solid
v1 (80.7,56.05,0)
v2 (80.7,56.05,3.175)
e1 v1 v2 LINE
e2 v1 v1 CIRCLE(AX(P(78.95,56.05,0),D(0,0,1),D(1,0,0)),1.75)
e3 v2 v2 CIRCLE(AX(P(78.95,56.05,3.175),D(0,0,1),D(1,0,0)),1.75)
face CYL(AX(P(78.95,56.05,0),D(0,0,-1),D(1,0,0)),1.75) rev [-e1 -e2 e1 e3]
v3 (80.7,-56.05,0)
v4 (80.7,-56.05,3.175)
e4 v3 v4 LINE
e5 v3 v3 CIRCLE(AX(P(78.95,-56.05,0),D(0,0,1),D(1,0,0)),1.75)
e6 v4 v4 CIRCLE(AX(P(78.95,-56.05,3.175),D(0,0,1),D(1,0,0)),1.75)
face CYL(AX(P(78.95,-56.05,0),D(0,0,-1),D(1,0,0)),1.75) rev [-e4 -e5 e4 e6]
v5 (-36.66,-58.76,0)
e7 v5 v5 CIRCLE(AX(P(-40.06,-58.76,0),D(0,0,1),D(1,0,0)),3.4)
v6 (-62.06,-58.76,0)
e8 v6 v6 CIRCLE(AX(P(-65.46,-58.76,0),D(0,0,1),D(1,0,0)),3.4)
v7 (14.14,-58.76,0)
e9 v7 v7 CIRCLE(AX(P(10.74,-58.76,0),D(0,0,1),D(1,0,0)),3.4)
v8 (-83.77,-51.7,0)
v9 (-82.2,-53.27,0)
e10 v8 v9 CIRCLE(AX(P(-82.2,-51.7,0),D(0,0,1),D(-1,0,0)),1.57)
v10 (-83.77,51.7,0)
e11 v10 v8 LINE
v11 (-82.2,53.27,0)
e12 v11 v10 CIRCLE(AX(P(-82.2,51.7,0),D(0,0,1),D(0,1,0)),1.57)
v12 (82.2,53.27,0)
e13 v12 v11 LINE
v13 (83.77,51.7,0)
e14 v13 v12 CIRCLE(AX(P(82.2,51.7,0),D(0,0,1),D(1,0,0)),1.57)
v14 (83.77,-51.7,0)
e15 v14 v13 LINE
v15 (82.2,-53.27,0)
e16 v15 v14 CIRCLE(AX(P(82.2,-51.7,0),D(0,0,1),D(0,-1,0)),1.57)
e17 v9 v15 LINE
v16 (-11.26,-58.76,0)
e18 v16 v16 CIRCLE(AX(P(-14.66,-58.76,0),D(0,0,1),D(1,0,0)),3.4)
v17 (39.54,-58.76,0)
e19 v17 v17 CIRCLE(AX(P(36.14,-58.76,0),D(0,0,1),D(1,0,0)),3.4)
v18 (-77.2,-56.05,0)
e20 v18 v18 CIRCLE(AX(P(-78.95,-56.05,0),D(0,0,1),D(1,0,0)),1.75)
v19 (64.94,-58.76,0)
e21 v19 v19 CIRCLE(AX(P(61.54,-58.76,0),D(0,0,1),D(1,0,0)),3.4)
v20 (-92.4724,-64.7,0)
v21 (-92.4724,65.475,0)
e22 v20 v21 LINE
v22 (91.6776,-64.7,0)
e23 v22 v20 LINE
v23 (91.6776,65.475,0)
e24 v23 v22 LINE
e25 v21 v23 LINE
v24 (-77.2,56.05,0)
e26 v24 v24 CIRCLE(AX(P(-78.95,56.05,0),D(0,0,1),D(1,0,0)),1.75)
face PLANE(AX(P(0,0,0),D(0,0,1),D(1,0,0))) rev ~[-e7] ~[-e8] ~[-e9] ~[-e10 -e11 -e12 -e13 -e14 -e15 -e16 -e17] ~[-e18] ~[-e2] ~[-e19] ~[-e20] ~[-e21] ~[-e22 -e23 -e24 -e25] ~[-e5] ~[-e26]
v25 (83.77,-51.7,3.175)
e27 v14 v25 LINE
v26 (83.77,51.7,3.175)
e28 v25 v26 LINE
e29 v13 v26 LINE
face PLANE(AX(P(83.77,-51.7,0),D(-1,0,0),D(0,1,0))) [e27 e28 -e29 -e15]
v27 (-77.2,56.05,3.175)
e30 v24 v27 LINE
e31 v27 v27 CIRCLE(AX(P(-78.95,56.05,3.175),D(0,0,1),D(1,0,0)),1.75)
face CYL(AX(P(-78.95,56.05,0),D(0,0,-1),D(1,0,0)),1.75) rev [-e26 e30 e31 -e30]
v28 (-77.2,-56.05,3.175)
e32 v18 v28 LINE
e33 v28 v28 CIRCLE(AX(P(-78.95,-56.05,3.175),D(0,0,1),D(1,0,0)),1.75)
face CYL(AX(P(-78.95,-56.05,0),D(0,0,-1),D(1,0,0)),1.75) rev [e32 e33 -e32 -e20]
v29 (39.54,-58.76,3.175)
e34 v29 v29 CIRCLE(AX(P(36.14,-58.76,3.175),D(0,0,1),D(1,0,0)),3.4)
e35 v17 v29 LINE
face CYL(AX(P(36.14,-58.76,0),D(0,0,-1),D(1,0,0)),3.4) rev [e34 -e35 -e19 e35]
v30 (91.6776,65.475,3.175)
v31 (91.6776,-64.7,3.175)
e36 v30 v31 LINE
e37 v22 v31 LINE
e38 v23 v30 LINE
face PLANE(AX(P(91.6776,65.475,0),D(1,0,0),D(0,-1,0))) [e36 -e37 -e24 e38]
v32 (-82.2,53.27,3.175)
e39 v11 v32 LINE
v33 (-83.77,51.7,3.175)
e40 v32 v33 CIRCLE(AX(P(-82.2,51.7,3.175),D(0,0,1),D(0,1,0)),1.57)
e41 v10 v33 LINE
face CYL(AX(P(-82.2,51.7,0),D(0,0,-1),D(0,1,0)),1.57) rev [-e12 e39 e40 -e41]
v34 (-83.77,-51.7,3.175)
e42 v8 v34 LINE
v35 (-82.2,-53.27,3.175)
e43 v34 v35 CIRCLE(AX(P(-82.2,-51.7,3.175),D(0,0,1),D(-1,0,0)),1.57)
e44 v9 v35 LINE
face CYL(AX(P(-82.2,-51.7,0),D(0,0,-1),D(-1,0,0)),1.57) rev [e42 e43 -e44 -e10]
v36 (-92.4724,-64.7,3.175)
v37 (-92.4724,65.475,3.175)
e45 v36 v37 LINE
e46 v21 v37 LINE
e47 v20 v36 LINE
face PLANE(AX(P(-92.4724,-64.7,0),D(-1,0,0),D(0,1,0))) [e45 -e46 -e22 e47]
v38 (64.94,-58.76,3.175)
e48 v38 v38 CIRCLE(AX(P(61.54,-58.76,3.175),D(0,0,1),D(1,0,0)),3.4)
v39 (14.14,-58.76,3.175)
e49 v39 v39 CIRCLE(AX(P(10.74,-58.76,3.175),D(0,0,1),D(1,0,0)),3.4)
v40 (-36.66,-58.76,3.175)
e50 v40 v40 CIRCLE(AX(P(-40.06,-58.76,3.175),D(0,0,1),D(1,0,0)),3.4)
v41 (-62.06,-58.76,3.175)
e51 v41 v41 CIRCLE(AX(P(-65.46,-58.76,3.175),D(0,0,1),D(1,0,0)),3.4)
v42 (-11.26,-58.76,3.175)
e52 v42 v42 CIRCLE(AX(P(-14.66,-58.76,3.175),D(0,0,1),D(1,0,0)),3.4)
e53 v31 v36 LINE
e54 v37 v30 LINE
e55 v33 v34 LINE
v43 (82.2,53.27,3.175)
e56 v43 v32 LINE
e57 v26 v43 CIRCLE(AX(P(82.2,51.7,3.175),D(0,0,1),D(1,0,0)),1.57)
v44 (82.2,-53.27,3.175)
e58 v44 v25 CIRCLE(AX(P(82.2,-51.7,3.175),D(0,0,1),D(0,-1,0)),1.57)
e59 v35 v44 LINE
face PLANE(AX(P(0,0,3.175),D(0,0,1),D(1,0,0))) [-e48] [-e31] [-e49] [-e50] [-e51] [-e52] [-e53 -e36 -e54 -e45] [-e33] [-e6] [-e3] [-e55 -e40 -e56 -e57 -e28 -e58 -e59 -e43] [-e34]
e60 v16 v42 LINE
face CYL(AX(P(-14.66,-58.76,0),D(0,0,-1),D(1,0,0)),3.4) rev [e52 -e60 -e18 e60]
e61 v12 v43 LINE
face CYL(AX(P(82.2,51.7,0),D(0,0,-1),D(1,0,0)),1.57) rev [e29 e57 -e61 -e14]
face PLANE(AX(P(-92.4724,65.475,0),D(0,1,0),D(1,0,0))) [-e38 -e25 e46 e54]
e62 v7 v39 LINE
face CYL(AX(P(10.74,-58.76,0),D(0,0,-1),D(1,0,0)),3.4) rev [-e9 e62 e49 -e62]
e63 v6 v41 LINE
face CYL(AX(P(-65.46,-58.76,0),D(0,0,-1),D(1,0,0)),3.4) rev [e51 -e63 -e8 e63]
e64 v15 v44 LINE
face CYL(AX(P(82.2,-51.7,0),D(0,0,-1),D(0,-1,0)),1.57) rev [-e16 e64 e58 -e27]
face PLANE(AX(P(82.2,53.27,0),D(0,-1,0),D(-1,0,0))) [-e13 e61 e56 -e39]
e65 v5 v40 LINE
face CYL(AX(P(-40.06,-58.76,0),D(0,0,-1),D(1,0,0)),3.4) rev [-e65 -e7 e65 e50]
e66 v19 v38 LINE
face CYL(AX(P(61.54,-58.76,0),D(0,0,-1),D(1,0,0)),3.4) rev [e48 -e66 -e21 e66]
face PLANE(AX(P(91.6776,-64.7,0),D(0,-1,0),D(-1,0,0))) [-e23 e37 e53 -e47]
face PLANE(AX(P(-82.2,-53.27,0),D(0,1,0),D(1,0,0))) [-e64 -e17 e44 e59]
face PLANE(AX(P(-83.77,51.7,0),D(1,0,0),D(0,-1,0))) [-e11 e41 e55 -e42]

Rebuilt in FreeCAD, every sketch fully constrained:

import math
import FreeCAD as App
import Part
import Sketcher
from FreeCAD import Vector
Q = App.Units.Quantity


def add_polygon(sketch, points):
    """Adds a closed chain of lines whose ends are joined by coincident constraints."""
    first, n = sketch.GeometryCount, len(points)
    for a, b in zip(points, points[1:] + points[:1]):
        sketch.addGeometry(Part.LineSegment(App.Vector(*a, 0), App.Vector(*b, 0)), False)
    for i in range(n):
        sketch.addConstraint(Sketcher.Constraint("Coincident", first + i, 2, first + (i + 1) % n, 1))

doc = App.newDocument("Part")
params = doc.addObject("Spreadsheet::Sheet", "Params")
for row, (alias, value) in enumerate([
    ("sketch1_diameter", "6.8 mm"),
    ("sketch1_diameter2", "3.5 mm"),
    ("sketch1_width", "184.15 mm"),
    ("sketch1_radius", "1.57 mm"),
    ("sketch1_width2", "164.4 mm"),
    ("pad1_length", "3.175 mm"),
], start=1):
    params.set(f"A{row}", alias)
    params.set(f"B{row}", "=" + value)
    params.setAlias(f"B{row}", alias)

body = doc.addObject("PartDesign::Body", "Body")

sketch1 = body.newObject("Sketcher::SketchObject", "Sketch")
sketch1.AttachmentSupport = (doc.getObject("XY_Plane"), [""])
sketch1.MapMode = "FlatFace"
add_polygon(sketch1, [(91.7, 65.5), (-92.5, 65.5), (-92.5, -64.7), (91.7, -64.7)])
sketch1.addGeometry(Part.Circle(Vector(-79, -56, 0), Vector(0, 0, 1), 1.8), False)
sketch1.addGeometry(Part.Circle(Vector(-65.5, -58.8, 0), Vector(0, 0, 1), 3.4), False)
sketch1.addGeometry(Part.Circle(Vector(-40.1, -58.8, 0), Vector(0, 0, 1), 3.4), False)
sketch1.addGeometry(Part.Circle(Vector(-14.7, -58.8, 0), Vector(0, 0, 1), 3.4), False)
sketch1.addGeometry(Part.Circle(Vector(10.7, -58.8, 0), Vector(0, 0, 1), 3.4), False)
sketch1.addGeometry(Part.Circle(Vector(36.1, -58.8, 0), Vector(0, 0, 1), 3.4), False)
sketch1.addGeometry(Part.Circle(Vector(61.5, -58.8, 0), Vector(0, 0, 1), 3.4), False)
sketch1.addGeometry(Part.Circle(Vector(79, -56, 0), Vector(0, 0, 1), 1.8), False)
sketch1.addGeometry(Part.LineSegment(Vector(82.2, -53.3, 0), Vector(-82.2, -53.3, 0)), False)
sketch1.addGeometry(Part.ArcOfCircle(Part.Circle(Vector(-82.2, -51.7, 0), Vector(0, 0, 1), 1.6), math.radians(180), math.radians(270)), False)
sketch1.addGeometry(Part.LineSegment(Vector(-83.8, -51.7, 0), Vector(-83.8, 51.7, 0)), False)
sketch1.addGeometry(Part.ArcOfCircle(Part.Circle(Vector(-82.2, 51.7, 0), Vector(0, 0, 1), 1.6), math.radians(90), math.radians(180)), False)
sketch1.addGeometry(Part.LineSegment(Vector(-82.2, 53.3, 0), Vector(82.2, 53.3, 0)), False)
sketch1.addGeometry(Part.ArcOfCircle(Part.Circle(Vector(82.2, 51.7, 0), Vector(0, 0, 1), 1.6), math.radians(0), math.radians(90)), False)
sketch1.addGeometry(Part.LineSegment(Vector(83.8, 51.7, 0), Vector(83.8, -51.7, 0)), False)
sketch1.addGeometry(Part.ArcOfCircle(Part.Circle(Vector(82.2, -51.7, 0), Vector(0, 0, 1), 1.6), math.radians(-90), math.radians(0)), False)
sketch1.addGeometry(Part.Circle(Vector(-79, 56, 0), Vector(0, 0, 1), 1.8), False)
sketch1.addGeometry(Part.Circle(Vector(79, 56, 0), Vector(0, 0, 1), 1.8), False)
sketch1.addConstraint([
    Sketcher.Constraint("Tangent", 12, 2, 13, 2),
    Sketcher.Constraint("Tangent", 13, 1, 14, 1),
    Sketcher.Constraint("Tangent", 14, 2, 15, 2),
    Sketcher.Constraint("Tangent", 15, 1, 16, 1),
    Sketcher.Constraint("Tangent", 16, 2, 17, 2),
    Sketcher.Constraint("Tangent", 17, 1, 18, 1),
    Sketcher.Constraint("Tangent", 18, 2, 19, 2),
    Sketcher.Constraint("Tangent", 19, 1, 12, 1),
    Sketcher.Constraint("Horizontal", 0),
    Sketcher.Constraint("Vertical", 1),
    Sketcher.Constraint("Horizontal", 2),
    Sketcher.Constraint("Vertical", 3),
    Sketcher.Constraint("Horizontal", 12),
    Sketcher.Constraint("Vertical", 14),
    Sketcher.Constraint("Horizontal", 16),
    Sketcher.Constraint("Vertical", 18),
    Sketcher.Constraint("Equal", 5, 6),
    Sketcher.Constraint("Equal", 6, 7),
    Sketcher.Constraint("Equal", 7, 8),
    Sketcher.Constraint("Equal", 8, 9),
    Sketcher.Constraint("Equal", 9, 10),
    Sketcher.Constraint("Equal", 4, 11),
    Sketcher.Constraint("Equal", 13, 15),
    Sketcher.Constraint("Equal", 15, 17),
    Sketcher.Constraint("Equal", 17, 19),
    Sketcher.Constraint("Equal", 11, 20),
    Sketcher.Constraint("Equal", 20, 21),
    Sketcher.Constraint("Symmetric", 13, 3, 17, 3, -1, 1),
    Sketcher.Constraint("Symmetric", 11, 3, 20, 3, -1, 1),
    Sketcher.Constraint("Symmetric", 4, 3, 21, 3, -1, 1),
    Sketcher.Constraint("Symmetric", 4, 3, 11, 3, -2),
    Sketcher.Constraint("Horizontal", 5, 3, 6, 3),
    Sketcher.Constraint("Horizontal", 6, 3, 7, 3),
    Sketcher.Constraint("Horizontal", 7, 3, 8, 3),
    Sketcher.Constraint("Horizontal", 8, 3, 9, 3),
    Sketcher.Constraint("Horizontal", 9, 3, 10, 3),
    Sketcher.Constraint("Diameter", 5, Q("6.8 mm")),
    Sketcher.Constraint("Diameter", 4, Q("3.5 mm")),
    Sketcher.Constraint("DistanceX", 0, 2, 0, 1, Q("184.15 mm")),
    Sketcher.Constraint("DistanceX", 5, 3, 6, 3, Q("25.4 mm")),
    Sketcher.Constraint("DistanceX", 6, 3, 7, 3, Q("25.4 mm")),
    Sketcher.Constraint("DistanceX", 7, 3, 8, 3, Q("25.4 mm")),
    Sketcher.Constraint("DistanceX", 8, 3, 9, 3, Q("25.4 mm")),
    Sketcher.Constraint("DistanceX", 9, 3, 10, 3, Q("25.4 mm")),
    Sketcher.Constraint("DistanceY", 1, 2, 1, 1, Q("130.175 mm")),
    Sketcher.Constraint("Radius", 13, Q("1.57 mm")),
    Sketcher.Constraint("DistanceX", 12, 2, 12, 1, Q("164.4 mm")),
    Sketcher.Constraint("DistanceY", 14, 1, 14, 2, Q("103.4 mm")),
    Sketcher.Constraint("DistanceY", 1, 2, 13, 3, Q("13 mm")),
    Sketcher.Constraint("DistanceY", 4, 3, 20, 3, Q("112.1 mm")),
    Sketcher.Constraint("DistanceX", 4, 3, -1, 1, Q("78.95 mm")),
    Sketcher.Constraint("DistanceX", 5, 3, -1, 1, Q("65.46 mm")),
    Sketcher.Constraint("DistanceY", 5, 3, -1, 1, Q("58.76 mm")),
    Sketcher.Constraint("DistanceX", 0, 2, -1, 1, Q("92.4724 mm")),
])
sketch1.setExpression("Constraints[40]", "Params.sketch1_diameter")
sketch1.setExpression("Constraints[41]", "Params.sketch1_diameter2")
sketch1.setExpression("Constraints[42]", "Params.sketch1_width")
sketch1.setExpression("Constraints[49]", "Params.sketch1_radius")
sketch1.setExpression("Constraints[50]", "Params.sketch1_width2")
pad1 = body.newObject("PartDesign::Pad", "Pad")
pad1.Profile = sketch1
pad1.setExpression("Length", "Params.pad1_length")

doc.recompute()
